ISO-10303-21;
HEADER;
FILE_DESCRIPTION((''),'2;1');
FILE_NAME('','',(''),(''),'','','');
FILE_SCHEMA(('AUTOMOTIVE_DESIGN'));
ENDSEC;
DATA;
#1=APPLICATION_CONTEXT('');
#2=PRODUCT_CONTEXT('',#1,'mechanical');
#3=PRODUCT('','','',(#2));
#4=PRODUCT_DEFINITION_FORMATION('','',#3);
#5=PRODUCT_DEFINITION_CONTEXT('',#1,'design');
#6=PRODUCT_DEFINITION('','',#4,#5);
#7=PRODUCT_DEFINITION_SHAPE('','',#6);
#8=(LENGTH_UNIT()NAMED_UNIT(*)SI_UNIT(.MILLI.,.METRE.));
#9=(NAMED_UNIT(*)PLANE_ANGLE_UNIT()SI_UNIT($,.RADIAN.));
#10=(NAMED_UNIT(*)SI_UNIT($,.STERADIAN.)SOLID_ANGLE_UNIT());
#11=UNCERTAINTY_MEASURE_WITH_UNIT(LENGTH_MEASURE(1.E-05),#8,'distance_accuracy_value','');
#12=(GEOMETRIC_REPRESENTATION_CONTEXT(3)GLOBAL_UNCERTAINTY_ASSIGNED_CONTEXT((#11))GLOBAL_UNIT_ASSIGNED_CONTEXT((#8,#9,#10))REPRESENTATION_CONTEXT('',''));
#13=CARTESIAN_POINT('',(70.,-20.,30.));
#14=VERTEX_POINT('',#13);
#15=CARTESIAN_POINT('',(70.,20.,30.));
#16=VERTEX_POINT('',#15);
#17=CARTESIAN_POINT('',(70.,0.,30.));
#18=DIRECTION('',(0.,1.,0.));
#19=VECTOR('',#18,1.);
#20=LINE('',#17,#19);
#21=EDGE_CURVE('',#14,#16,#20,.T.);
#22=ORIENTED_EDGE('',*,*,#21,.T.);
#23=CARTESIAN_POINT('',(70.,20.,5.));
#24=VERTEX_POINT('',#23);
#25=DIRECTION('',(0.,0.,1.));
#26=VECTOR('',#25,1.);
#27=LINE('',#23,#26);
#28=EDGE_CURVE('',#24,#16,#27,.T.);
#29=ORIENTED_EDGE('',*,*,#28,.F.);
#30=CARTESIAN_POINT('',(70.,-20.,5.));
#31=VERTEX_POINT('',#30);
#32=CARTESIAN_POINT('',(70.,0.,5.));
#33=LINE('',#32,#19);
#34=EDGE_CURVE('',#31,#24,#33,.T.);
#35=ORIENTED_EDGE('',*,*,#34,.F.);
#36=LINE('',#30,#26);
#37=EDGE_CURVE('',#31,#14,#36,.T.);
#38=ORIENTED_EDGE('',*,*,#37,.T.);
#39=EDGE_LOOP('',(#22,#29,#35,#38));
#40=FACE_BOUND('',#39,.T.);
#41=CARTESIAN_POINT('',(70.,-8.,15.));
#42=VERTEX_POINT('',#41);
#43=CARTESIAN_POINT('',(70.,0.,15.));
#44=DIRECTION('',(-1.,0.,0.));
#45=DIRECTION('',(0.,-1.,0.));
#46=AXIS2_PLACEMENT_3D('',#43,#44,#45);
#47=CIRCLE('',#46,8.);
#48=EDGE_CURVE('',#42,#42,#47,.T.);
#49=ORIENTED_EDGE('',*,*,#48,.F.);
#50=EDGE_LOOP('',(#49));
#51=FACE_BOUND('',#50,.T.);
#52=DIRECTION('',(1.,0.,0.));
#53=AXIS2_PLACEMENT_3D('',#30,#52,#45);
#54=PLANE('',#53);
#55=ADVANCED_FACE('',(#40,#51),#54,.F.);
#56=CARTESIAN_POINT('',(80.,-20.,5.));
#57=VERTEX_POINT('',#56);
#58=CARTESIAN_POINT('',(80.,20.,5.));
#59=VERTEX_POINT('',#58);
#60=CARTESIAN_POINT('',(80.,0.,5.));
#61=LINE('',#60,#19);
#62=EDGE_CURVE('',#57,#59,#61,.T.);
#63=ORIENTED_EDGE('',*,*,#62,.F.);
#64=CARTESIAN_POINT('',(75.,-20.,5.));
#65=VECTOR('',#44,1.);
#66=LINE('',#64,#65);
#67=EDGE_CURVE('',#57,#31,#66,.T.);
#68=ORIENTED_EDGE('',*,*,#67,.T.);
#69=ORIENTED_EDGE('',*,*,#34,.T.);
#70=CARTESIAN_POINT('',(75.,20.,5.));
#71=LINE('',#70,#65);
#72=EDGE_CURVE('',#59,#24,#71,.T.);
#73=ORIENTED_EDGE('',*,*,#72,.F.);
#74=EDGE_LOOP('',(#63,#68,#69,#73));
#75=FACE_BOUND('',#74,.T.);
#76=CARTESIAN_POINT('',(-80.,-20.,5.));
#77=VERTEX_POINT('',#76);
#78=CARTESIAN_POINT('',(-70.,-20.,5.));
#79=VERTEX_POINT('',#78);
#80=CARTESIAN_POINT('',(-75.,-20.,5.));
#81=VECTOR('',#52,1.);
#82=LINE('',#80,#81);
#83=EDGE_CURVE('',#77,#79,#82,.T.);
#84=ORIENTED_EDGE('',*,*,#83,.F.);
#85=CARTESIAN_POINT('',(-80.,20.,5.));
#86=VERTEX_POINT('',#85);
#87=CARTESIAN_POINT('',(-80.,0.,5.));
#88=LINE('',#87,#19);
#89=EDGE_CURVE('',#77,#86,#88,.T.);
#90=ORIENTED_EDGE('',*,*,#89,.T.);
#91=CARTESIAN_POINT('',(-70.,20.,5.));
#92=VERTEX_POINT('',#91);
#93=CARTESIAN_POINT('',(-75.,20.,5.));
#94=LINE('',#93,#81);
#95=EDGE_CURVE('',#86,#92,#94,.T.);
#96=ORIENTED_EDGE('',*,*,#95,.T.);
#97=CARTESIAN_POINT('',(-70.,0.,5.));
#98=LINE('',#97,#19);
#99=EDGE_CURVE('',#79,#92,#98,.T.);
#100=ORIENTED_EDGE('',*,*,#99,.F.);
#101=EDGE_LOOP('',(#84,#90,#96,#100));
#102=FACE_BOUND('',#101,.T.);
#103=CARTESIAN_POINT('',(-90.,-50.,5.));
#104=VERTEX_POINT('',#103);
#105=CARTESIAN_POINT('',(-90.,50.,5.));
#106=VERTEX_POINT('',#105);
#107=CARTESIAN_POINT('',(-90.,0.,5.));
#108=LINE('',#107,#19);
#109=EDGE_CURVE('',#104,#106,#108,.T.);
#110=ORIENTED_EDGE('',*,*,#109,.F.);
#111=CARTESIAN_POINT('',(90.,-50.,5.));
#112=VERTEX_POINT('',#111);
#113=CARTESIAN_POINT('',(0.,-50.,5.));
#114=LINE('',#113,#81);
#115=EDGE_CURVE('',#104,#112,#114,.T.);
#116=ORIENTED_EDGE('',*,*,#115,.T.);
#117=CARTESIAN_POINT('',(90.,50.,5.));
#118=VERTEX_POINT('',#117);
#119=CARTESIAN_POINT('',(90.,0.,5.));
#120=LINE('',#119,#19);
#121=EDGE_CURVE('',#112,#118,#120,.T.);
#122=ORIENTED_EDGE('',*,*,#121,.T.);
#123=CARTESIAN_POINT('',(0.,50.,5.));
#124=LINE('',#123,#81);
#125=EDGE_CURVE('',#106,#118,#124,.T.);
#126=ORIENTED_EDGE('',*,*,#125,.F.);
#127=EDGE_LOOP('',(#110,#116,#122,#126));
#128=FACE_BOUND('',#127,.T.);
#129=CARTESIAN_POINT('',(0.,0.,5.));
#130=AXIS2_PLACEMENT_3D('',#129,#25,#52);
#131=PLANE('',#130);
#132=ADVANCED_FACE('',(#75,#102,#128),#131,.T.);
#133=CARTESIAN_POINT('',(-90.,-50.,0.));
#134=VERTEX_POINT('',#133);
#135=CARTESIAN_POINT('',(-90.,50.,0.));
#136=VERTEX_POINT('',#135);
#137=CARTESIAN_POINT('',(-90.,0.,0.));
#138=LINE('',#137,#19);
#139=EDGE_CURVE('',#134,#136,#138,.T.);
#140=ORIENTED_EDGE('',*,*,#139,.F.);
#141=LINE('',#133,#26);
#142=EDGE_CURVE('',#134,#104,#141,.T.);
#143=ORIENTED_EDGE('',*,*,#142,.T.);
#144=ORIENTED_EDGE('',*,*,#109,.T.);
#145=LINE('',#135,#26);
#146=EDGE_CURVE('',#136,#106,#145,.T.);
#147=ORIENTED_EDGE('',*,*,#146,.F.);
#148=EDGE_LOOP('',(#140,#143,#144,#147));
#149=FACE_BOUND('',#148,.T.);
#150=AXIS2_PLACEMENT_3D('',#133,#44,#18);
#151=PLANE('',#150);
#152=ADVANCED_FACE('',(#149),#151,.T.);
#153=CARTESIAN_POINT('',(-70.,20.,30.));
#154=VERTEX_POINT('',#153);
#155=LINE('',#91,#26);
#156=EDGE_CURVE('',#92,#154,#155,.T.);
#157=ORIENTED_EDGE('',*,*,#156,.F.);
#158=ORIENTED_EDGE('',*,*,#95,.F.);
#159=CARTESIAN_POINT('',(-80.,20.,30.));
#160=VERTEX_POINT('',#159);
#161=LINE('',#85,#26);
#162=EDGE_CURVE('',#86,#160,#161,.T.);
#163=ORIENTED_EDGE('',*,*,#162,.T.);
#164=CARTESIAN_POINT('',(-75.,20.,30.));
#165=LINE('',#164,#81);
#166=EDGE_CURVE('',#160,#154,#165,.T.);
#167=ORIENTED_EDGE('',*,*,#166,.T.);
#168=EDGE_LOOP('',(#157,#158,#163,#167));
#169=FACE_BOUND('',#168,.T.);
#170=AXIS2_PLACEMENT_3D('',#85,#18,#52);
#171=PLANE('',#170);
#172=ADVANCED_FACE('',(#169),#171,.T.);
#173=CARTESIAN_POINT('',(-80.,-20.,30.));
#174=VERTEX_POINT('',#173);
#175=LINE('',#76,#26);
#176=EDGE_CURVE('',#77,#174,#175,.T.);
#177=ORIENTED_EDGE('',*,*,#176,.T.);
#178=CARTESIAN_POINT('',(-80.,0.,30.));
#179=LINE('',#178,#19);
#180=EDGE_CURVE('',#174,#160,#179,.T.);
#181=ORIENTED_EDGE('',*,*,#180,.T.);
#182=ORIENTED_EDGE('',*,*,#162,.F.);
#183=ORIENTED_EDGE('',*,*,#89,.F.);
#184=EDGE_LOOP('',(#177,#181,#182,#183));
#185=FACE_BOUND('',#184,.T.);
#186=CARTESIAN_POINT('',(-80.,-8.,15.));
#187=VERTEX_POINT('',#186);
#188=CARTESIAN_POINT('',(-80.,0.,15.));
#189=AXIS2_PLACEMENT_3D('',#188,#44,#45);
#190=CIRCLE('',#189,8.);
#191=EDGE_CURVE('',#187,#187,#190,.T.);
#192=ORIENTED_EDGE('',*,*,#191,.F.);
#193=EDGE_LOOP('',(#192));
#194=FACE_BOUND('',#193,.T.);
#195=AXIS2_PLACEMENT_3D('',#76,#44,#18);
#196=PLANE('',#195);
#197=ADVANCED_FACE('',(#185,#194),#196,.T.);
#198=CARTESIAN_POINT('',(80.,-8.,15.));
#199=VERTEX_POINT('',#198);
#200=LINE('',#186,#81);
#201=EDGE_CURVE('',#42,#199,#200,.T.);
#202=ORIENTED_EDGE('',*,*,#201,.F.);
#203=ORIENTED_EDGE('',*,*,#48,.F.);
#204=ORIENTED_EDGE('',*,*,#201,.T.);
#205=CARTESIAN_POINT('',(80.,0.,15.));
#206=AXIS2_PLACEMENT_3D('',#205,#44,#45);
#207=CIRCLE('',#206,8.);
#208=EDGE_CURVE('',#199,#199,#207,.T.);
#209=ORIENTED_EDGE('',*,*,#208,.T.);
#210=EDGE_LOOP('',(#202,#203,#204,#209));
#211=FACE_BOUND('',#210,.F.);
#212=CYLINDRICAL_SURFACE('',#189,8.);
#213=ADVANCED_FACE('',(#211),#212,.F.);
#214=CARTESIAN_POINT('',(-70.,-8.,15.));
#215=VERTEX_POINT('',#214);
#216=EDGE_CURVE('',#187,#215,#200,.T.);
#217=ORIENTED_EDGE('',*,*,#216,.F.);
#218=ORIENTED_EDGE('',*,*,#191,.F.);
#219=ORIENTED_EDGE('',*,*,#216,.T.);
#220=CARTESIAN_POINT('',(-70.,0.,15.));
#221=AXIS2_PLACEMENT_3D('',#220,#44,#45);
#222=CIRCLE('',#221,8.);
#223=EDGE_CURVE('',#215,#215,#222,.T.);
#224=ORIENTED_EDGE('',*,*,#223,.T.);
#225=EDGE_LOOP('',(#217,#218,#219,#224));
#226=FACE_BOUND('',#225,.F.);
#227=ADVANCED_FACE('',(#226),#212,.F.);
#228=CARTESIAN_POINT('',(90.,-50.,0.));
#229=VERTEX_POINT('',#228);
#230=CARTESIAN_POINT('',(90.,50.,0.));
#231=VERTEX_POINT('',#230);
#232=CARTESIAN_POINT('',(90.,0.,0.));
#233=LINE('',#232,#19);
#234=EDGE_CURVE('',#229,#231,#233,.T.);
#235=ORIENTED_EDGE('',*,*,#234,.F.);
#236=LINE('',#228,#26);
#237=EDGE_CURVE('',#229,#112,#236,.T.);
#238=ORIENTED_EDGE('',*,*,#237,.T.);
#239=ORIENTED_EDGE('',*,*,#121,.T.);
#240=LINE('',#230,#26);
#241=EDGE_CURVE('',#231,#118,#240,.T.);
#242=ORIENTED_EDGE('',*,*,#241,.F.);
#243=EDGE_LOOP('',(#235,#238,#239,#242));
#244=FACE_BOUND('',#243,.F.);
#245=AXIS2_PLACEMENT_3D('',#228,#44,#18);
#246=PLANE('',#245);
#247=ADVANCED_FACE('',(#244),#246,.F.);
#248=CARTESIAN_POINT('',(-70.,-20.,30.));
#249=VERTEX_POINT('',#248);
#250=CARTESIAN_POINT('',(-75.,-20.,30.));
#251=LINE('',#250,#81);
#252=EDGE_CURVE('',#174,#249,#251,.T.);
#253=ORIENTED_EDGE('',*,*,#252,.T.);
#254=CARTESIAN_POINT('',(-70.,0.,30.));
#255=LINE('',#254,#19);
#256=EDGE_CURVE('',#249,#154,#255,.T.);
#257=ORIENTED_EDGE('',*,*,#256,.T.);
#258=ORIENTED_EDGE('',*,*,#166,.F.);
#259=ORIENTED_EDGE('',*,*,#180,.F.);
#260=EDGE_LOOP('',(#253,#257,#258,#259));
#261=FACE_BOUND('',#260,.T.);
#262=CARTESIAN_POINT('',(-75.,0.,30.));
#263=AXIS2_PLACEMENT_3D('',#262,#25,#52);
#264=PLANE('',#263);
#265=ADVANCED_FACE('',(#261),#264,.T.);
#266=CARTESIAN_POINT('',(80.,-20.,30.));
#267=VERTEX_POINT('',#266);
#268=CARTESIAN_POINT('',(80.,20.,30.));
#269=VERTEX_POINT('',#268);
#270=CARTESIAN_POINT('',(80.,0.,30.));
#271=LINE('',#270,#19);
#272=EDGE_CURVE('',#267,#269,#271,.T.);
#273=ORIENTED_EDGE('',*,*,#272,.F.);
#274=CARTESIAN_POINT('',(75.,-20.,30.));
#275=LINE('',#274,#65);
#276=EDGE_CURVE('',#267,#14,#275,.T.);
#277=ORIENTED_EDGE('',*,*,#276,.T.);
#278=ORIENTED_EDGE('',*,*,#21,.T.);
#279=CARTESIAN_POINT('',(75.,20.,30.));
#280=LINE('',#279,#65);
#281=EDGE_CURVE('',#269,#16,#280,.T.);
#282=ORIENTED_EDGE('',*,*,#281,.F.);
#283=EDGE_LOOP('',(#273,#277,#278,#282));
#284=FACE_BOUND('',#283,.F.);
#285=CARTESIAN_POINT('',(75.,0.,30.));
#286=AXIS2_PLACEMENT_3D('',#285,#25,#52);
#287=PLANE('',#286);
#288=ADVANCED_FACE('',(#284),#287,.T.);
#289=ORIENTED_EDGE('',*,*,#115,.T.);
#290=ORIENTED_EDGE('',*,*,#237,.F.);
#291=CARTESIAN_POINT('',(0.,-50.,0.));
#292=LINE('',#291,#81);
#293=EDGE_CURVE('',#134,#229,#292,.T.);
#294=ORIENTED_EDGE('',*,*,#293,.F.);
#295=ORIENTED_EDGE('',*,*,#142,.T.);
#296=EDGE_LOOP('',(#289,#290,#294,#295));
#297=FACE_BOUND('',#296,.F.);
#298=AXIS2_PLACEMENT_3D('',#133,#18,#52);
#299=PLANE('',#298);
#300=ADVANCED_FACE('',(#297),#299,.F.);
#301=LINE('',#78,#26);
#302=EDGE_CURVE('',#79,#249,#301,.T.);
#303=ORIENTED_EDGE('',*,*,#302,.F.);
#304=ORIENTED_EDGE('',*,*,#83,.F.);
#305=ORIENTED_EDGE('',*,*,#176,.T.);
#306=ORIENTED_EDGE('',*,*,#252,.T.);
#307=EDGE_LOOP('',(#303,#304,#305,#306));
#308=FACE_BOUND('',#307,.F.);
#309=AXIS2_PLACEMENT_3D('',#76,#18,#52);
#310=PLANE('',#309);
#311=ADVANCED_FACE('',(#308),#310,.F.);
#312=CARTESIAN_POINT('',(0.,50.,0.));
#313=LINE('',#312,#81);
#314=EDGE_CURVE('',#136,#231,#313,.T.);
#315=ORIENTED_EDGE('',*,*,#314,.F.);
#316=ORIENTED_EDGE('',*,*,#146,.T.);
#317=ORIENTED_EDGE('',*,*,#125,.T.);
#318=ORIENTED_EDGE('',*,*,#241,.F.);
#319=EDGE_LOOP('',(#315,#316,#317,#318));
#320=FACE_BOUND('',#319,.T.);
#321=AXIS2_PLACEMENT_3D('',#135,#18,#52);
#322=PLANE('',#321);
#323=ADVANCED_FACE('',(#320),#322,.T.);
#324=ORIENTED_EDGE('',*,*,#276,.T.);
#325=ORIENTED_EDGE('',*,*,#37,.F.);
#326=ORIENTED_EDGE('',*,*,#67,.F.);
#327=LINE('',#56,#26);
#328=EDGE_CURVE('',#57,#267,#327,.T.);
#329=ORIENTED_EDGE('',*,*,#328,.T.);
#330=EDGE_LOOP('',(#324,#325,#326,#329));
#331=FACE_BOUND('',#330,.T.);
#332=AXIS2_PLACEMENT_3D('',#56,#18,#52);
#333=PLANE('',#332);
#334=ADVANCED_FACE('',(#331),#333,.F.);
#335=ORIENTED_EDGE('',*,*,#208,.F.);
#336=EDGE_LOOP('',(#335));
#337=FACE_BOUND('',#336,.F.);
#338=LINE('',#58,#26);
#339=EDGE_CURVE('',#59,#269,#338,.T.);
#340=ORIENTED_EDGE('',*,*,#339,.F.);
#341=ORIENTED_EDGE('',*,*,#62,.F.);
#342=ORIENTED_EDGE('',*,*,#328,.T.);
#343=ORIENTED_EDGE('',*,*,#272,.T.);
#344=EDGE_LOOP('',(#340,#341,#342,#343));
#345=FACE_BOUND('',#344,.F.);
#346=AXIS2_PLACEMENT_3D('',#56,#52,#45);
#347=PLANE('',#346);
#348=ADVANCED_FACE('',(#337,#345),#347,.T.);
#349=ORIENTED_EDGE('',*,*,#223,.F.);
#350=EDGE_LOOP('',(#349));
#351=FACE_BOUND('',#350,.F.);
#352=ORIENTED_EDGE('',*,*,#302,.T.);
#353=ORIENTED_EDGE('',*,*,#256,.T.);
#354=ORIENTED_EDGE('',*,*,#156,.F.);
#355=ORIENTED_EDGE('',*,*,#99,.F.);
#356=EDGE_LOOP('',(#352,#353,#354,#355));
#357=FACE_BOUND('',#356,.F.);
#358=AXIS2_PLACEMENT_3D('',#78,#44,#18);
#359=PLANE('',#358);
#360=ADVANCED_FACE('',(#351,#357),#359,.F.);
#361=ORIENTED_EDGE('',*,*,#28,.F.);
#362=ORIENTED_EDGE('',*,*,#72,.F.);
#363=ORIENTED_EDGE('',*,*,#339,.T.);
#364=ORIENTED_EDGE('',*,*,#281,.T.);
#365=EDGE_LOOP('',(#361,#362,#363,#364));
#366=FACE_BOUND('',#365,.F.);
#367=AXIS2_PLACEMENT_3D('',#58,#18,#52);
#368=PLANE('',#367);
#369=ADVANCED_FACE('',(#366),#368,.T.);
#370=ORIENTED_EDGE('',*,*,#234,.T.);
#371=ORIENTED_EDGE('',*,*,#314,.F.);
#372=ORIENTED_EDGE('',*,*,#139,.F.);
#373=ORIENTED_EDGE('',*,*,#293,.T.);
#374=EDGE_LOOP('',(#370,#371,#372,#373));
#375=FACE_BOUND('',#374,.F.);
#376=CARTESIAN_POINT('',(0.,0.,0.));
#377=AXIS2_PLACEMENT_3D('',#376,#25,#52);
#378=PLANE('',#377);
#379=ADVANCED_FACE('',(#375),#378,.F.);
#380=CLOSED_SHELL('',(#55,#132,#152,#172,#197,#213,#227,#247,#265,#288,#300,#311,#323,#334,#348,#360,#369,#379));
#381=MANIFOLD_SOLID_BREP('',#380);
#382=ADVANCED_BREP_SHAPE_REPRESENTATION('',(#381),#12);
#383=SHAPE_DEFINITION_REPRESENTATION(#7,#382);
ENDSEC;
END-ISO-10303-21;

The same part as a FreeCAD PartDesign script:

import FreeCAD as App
import Part
import Sketcher
Q = App.Units.Quantity


def add_polygon(sketch, points):
    """Adds a closed chain of lines whose ends are joined by coincident constraints."""
    first, n = sketch.GeometryCount, len(points)
    for a, b in zip(points, points[1:] + points[:1]):
        sketch.addGeometry(Part.LineSegment(App.Vector(*a, 0), App.Vector(*b, 0)), False)
    for i in range(n):
        sketch.addConstraint(Sketcher.Constraint("Coincident", first + i, 2, first + (i + 1) % n, 1))

doc = App.newDocument("Part")
body = doc.addObject("PartDesign::Body", "Body")

# Sketch on XY plane
sketch1 = body.newObject("Sketcher::SketchObject", "Sketch")
sketch1.AttachmentSupport = (doc.getObject("XY_Plane"), [""])
sketch1.MapMode = "FlatFace"
add_polygon(sketch1, [(-90, 50), (-90, -50), (90, -50), (90, 50)])  # lines 0-3
sketch1.addConstraint([
    Sketcher.Constraint("Vertical", 0),
    Sketcher.Constraint("Horizontal", 1),
    Sketcher.Constraint("Vertical", 2),
    Sketcher.Constraint("Horizontal", 3),
    Sketcher.Constraint("Symmetric", 0, 2, 2, 2, -1, 1),
    Sketcher.Constraint("DistanceX", 1, 1, 1, 2, Q("180 mm")),
    Sketcher.Constraint("DistanceY", 0, 2, 0, 1, Q("100 mm")),
])
pad1 = body.newObject("PartDesign::Pad", "Pad")
pad1.Profile = sketch1
pad1.Length = 5

# Sketch on XY plane
sketch2 = body.newObject("Sketcher::SketchObject", "Sketch001")
sketch2.AttachmentSupport = (doc.getObject("XY_Plane"), [""])
sketch2.MapMode = "FlatFace"
sketch2.AttachmentOffset = App.Placement(App.Vector(0, 0, 5), App.Rotation())
add_polygon(sketch2, [(-80, 20), (-80, -20), (-70, -20), (-70, 20)])  # lines 0-3
sketch2.addConstraint([
    Sketcher.Constraint("Vertical", 0),
    Sketcher.Constraint("Horizontal", 1),
    Sketcher.Constraint("Vertical", 2),
    Sketcher.Constraint("Horizontal", 3),
    Sketcher.Constraint("DistanceX", 1, 1, 1, 2, Q("10 mm")),
    Sketcher.Constraint("DistanceY", 0, 2, 0, 1, Q("40 mm")),
    Sketcher.Constraint("DistanceX", 0, 2, -1, 1, Q("80 mm")),
    Sketcher.Constraint("DistanceY", 0, 2, -1, 1, Q("20 mm")),
])
pad2 = body.newObject("PartDesign::Pad", "Pad001")
pad2.Profile = sketch2
pad2.Length = 25
doc.recompute()

mirrored = body.newObject("PartDesign::Mirrored", "Mirrored")
mirrored.Originals = [pad2]
mirrored.MirrorPlane = (doc.getObject("YZ_Plane"), [""])
body.Tip = mirrored

# Sketch on YZ plane
sketch3 = body.newObject("Sketcher::SketchObject", "Sketch002")
sketch3.AttachmentSupport = (doc.getObject("YZ_Plane"), [""])
sketch3.MapMode = "FlatFace"
sketch3.AttachmentOffset = App.Placement(App.Vector(0, 0, -80), App.Rotation())
sketch3.addGeometry(Part.Circle(App.Vector(0, 15, 0), App.Vector(0, 0, 1), 8), False)
sketch3.addConstraint([
    Sketcher.Constraint("PointOnObject", 0, 3, -2),
    Sketcher.Constraint("Diameter", 0, Q("16 mm")),
    Sketcher.Constraint("DistanceY", -1, 1, 0, 3, Q("15 mm")),
])
pocket1 = body.newObject("PartDesign::Pocket", "Pocket")
pocket1.Profile = sketch3
pocket1.Type = "ThroughAll"
pocket1.Reversed = True

doc.recompute()
